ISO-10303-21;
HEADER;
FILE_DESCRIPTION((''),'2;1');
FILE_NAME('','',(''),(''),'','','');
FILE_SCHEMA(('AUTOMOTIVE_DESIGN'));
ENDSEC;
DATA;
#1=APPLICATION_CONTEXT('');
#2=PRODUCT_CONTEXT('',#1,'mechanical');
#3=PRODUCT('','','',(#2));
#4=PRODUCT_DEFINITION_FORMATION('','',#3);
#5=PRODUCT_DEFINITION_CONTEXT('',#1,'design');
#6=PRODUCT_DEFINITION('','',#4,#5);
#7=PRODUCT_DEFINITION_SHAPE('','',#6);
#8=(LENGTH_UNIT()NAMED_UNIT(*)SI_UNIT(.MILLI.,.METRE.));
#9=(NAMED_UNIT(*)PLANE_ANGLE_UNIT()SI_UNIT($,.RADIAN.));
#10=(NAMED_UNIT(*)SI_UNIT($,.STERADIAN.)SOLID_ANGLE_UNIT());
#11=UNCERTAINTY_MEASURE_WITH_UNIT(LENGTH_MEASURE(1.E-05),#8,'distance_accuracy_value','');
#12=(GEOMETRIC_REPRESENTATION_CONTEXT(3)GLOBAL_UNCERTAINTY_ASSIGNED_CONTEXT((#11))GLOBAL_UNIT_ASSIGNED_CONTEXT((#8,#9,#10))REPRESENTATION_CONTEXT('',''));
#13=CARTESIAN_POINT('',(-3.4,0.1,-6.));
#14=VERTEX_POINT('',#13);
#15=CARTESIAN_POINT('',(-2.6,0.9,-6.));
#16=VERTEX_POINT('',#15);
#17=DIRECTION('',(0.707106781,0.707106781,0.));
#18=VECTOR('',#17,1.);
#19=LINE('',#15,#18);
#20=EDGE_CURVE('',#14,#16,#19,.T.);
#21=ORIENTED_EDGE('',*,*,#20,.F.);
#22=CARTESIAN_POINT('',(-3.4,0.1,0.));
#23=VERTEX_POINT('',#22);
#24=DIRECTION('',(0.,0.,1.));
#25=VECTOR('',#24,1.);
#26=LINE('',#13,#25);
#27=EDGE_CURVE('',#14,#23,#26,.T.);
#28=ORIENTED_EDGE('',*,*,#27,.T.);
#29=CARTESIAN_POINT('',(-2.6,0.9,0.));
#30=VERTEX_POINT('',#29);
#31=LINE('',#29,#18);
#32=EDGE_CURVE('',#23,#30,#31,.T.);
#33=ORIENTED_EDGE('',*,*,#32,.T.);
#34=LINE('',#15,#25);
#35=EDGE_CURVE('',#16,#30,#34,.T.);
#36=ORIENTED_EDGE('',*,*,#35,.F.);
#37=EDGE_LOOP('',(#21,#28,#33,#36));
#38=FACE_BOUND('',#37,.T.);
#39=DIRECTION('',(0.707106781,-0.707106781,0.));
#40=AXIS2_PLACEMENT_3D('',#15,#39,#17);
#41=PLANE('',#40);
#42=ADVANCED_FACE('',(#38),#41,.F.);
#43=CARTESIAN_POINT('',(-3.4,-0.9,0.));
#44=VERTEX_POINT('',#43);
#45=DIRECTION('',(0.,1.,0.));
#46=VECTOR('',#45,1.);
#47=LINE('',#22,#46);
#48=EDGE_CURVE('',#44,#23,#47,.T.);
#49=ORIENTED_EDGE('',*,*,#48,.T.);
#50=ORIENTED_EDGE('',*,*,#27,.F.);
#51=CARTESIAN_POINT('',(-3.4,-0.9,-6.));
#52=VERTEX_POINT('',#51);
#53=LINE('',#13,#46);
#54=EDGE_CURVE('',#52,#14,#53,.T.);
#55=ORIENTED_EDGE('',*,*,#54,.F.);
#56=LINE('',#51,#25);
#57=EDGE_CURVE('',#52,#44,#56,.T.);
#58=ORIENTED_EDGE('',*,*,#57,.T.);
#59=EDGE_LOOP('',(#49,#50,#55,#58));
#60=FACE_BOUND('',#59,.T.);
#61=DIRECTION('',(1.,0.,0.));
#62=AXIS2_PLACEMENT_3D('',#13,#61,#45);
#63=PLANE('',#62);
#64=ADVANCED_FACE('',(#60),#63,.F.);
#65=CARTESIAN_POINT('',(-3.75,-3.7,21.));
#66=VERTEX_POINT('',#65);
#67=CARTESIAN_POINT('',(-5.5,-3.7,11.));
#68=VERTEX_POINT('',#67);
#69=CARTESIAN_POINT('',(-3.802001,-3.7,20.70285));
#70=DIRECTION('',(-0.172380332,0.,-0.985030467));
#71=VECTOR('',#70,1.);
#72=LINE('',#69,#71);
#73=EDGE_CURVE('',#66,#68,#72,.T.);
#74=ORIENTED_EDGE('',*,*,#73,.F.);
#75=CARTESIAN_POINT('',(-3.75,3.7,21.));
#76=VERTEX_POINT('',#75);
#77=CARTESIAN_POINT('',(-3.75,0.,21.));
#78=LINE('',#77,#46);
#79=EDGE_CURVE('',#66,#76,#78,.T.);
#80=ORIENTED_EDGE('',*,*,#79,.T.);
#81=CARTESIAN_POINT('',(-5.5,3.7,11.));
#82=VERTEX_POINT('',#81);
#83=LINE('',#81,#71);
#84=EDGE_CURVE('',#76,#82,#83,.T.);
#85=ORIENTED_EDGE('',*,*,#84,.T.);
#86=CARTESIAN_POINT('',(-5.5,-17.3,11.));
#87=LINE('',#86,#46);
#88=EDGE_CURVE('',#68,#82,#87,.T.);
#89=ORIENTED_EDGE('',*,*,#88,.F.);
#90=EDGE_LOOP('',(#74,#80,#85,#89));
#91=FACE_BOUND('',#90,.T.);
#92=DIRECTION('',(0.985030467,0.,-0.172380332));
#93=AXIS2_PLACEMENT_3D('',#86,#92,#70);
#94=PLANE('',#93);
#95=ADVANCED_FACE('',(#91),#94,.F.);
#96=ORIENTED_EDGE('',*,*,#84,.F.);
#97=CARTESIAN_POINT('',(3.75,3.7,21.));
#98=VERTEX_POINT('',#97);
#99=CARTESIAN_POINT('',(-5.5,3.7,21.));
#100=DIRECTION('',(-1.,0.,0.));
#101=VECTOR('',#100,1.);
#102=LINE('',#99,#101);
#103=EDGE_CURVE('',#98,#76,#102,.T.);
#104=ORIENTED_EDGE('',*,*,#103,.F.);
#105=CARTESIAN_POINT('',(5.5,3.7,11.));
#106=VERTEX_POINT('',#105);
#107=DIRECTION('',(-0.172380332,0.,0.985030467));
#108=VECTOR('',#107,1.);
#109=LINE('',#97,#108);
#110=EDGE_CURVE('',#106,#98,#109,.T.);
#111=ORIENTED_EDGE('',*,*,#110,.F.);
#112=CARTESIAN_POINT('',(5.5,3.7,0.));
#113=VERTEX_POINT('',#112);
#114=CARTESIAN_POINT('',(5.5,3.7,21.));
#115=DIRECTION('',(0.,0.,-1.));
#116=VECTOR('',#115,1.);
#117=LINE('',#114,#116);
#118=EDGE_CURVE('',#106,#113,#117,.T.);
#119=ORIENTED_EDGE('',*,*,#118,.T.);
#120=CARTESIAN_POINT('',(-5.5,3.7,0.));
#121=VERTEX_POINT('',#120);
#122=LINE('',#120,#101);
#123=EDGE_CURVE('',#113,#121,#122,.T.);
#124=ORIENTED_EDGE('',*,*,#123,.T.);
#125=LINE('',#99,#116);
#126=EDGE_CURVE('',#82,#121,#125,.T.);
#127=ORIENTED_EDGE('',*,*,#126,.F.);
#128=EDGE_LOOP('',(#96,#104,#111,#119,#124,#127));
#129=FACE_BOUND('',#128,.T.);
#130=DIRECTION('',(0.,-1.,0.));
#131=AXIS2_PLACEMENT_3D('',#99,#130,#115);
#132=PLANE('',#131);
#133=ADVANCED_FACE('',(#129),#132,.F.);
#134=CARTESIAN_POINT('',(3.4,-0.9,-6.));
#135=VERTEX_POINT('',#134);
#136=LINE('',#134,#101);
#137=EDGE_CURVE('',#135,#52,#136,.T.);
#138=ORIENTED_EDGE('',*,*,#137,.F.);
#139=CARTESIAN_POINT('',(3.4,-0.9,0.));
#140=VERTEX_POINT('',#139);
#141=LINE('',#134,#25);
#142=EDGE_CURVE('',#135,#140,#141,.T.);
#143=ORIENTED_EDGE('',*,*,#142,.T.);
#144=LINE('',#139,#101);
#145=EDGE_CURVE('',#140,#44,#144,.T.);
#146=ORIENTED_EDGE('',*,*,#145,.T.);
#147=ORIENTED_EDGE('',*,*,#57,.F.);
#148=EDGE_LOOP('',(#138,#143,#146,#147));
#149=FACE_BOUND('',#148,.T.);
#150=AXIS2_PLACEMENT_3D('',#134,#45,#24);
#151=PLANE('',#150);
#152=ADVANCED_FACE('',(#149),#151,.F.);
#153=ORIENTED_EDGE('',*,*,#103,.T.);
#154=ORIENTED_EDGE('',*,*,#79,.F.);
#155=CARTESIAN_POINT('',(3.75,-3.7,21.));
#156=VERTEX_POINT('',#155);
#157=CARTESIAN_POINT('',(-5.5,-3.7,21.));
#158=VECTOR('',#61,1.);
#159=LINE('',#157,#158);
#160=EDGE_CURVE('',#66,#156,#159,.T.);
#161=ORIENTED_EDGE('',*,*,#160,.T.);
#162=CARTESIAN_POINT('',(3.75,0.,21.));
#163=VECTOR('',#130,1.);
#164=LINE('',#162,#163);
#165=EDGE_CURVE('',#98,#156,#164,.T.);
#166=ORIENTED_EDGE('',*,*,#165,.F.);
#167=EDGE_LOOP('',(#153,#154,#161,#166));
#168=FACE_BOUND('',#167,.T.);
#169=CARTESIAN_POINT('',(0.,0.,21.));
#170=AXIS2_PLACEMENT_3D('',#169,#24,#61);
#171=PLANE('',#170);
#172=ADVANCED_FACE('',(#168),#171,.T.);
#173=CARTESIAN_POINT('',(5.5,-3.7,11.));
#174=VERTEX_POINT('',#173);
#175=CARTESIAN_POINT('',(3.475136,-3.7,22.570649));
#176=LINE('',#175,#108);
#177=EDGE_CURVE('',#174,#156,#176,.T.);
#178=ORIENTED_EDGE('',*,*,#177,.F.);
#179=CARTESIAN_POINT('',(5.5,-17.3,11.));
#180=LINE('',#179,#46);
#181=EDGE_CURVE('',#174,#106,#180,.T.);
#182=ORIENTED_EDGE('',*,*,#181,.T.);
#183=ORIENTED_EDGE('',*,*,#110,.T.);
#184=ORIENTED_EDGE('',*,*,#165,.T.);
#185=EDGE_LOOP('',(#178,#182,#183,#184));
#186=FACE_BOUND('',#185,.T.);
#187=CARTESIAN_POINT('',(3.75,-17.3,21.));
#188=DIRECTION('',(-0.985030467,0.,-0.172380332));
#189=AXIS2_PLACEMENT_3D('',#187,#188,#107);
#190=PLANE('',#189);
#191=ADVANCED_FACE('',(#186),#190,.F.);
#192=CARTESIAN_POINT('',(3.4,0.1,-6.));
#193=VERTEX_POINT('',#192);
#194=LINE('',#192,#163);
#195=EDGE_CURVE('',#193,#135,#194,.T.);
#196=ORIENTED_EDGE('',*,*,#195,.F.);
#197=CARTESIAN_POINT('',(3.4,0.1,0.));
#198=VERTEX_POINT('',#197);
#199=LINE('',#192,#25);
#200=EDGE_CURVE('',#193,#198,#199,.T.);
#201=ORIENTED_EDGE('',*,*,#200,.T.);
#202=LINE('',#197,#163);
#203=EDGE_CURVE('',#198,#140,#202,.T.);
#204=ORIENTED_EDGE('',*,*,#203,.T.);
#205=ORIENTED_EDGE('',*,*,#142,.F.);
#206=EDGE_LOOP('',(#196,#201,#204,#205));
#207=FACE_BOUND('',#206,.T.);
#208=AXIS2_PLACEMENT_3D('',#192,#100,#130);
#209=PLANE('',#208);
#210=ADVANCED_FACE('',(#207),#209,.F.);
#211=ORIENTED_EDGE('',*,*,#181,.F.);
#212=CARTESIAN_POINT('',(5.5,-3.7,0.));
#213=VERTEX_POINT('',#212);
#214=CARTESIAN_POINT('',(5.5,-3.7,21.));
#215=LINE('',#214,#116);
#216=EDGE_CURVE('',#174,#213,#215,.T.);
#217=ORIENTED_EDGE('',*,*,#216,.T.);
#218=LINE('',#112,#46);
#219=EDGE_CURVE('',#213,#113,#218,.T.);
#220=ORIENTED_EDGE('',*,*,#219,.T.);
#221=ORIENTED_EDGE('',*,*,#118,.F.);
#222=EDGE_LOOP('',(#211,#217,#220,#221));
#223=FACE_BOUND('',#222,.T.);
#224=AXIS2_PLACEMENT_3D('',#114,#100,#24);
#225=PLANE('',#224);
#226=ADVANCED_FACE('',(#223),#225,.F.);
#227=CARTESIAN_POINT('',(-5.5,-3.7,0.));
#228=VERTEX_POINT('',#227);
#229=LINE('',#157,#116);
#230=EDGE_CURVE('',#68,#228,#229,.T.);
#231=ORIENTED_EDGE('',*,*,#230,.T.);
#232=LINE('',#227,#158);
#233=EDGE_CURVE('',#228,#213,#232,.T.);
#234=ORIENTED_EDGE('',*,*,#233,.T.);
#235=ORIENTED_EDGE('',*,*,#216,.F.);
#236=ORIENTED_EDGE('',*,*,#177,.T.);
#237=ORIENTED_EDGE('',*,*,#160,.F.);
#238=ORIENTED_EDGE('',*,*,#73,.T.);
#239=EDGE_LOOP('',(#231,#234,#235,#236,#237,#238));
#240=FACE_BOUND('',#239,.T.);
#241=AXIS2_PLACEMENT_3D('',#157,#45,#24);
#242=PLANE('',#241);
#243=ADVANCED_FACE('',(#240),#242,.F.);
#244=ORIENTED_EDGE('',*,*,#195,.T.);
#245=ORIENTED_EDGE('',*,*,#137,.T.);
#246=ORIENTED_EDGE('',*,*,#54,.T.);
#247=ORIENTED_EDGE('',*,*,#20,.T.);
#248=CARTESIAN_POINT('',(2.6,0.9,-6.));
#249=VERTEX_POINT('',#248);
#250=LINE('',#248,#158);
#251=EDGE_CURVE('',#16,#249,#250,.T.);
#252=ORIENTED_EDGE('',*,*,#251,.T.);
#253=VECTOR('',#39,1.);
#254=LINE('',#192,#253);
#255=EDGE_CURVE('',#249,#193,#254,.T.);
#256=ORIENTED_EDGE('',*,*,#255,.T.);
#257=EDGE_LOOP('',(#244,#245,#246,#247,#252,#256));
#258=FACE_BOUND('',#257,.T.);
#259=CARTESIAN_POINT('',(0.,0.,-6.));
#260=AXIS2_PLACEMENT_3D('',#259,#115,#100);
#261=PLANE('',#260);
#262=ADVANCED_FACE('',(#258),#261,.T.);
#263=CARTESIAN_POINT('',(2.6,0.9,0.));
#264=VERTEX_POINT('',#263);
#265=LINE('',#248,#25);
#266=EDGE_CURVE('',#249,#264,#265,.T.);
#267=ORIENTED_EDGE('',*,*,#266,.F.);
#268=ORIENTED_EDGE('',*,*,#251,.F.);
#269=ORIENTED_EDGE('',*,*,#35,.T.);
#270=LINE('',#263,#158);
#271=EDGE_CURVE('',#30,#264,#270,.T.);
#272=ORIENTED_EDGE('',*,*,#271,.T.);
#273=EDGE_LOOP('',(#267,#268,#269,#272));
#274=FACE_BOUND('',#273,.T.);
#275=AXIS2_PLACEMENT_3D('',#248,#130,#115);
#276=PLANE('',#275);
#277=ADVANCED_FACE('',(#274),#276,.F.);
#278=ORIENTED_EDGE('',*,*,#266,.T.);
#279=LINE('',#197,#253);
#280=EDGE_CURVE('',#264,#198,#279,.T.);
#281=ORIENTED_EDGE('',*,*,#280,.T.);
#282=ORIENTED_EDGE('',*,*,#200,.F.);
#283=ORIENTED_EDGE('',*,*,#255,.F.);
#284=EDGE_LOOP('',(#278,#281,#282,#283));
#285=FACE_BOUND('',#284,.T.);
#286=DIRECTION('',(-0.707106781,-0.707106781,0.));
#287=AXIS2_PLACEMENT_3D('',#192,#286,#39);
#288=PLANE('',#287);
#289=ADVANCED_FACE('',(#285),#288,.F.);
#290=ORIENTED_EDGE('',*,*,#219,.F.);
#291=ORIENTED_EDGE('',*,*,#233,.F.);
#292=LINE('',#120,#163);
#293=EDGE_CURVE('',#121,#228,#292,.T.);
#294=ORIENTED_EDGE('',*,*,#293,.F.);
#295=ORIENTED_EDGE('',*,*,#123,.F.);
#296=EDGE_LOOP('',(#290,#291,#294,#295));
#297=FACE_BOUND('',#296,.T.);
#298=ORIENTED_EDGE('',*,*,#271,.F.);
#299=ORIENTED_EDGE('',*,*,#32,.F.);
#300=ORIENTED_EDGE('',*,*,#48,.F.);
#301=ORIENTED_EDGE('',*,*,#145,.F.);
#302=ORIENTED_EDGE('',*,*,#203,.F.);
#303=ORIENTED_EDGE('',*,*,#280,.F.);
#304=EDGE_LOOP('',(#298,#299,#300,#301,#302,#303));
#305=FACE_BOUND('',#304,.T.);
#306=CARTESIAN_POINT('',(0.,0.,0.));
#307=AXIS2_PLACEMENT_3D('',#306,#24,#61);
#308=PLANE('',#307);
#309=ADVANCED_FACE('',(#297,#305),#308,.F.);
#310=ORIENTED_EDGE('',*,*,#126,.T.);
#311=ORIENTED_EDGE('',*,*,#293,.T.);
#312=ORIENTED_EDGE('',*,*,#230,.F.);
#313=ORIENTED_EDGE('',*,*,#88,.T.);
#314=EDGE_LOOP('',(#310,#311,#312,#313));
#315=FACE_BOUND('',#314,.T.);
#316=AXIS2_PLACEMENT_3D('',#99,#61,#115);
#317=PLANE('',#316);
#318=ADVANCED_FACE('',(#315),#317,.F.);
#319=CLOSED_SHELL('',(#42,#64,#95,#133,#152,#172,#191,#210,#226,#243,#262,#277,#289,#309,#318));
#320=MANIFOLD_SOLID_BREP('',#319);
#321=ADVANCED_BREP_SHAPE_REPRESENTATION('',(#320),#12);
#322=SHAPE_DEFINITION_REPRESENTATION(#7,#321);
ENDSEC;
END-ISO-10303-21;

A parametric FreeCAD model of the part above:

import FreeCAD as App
import Part
import Sketcher
from FreeCAD import Vector


def add_polygon(sketch, points):
    """Adds a closed chain of lines whose ends are joined by coincident constraints."""
    first, n = sketch.GeometryCount, len(points)
    for a, b in zip(points, points[1:] + points[:1]):
        sketch.addGeometry(Part.LineSegment(App.Vector(*a, 0), App.Vector(*b, 0)), False)
    for i in range(n):
        sketch.addConstraint(Sketcher.Constraint("Coincident", first + i, 2, first + (i + 1) % n, 1))

doc = App.newDocument("Part")
body = doc.addObject("PartDesign::Body", "Body")

sketch1 = body.newObject("Sketcher::SketchObject", "Sketch")
sketch1.AttachmentSupport = (doc.getObject("XY_Plane"), [""])
sketch1.MapMode = "FlatFace"
add_polygon(sketch1, [(-6, 4), (-6, -4), (6, -4), (6, 4)])
sketch1.addConstraint([
    Sketcher.Constraint("Vertical", 0),
    Sketcher.Constraint("Horizontal", 1),
    Sketcher.Constraint("Vertical", 2),
    Sketcher.Constraint("Horizontal", 3),
    Sketcher.Constraint("Symmetric", 0, 2, 2, 2, -1, 1),
    Sketcher.Constraint("DistanceX", 1, 1, 1, 2, 11.0),
    Sketcher.Constraint("DistanceY", 0, 2, 0, 1, 7.4),
])
pad1 = body.newObject("PartDesign::Pad", "Pad")
pad1.Profile = sketch1
pad1.Length = 21

sketch2 = body.newObject("Sketcher::SketchObject", "Sketch001")
sketch2.AttachmentSupport = (doc.getObject("XZ_Plane"), [""])
sketch2.MapMode = "FlatFace"
sketch2.AttachmentOffset = App.Placement(Vector(0, 0, -3.7), App.Rotation())
add_polygon(sketch2, [(-3.8, 21), (-5.5, 11), (-8.6, 26.2), (9.2, 26.2), (8, 11), (5.5, 11), (3.8, 21)])
sketch2.addConstraint([
    Sketcher.Constraint("Horizontal", 2),
    Sketcher.Constraint("Horizontal", 4),
    Sketcher.Constraint("Horizontal", 6),
    Sketcher.Constraint("Symmetric", 0, 2, 4, 2, -2),
    Sketcher.Constraint("Equal", 0, 5),
    Sketcher.Constraint("DistanceX", 6, 2, 6, 1, 7.5),
    Sketcher.Constraint("DistanceY", -1, 1, 0, 2, 11.0),
    Sketcher.Constraint("DistanceY", -1, 1, 5, 2, 21.0),
    Sketcher.Constraint("DistanceX", 0, 2, 4, 2, 11.0),
    Sketcher.Constraint("DistanceX", 2, 1, 2, 2, 17.86813),
    Sketcher.Constraint("Distance", 1, 15.51251),
    Sketcher.Constraint("DistanceX", 4, 2, 4, 1, 2.521763),
    Sketcher.Constraint("DistanceY", -1, 1, 1, 2, 26.189909),
])
pocket1 = body.newObject("PartDesign::Pocket", "Pocket")
pocket1.Profile = sketch2
pocket1.Length = 21
pocket1.Reversed = True

sketch3 = body.newObject("Sketcher::SketchObject", "Sketch002")
sketch3.AttachmentSupport = (doc.getObject("XY_Plane"), [""])
sketch3.MapMode = "FlatFace"
add_polygon(sketch3, [(2.6, 0.9), (3.4, 0.1), (3.4, -0.9), (-3.4, -0.9), (-3.4, 0.1), (-2.6, 0.9)])
sketch3.addConstraint([
    Sketcher.Constraint("Vertical", 1),
    Sketcher.Constraint("Horizontal", 2),
    Sketcher.Constraint("Vertical", 3),
    Sketcher.Constraint("Horizontal", 5),
    Sketcher.Constraint("Symmetric", 0, 2, 3, 2, -2),
    Sketcher.Constraint("Perpendicular", 0, 4),
    Sketcher.Constraint("Equal", 0, 4),
    Sketcher.Constraint("DistanceY", 1, 2, 1, 1, 1.0),
    Sketcher.Constraint("DistanceX", 2, 2, 2, 1, 6.8),
    Sketcher.Constraint("DistanceX", 5, 1, 5, 2, 5.2),
    Sketcher.Constraint("DistanceY", -1, 1, 0, 2, 0.1),
])
pad2 = body.newObject("PartDesign::Pad", "Pad001")
pad2.Profile = sketch3
pad2.Length = 6
pad2.Reversed = True

doc.recompute()
